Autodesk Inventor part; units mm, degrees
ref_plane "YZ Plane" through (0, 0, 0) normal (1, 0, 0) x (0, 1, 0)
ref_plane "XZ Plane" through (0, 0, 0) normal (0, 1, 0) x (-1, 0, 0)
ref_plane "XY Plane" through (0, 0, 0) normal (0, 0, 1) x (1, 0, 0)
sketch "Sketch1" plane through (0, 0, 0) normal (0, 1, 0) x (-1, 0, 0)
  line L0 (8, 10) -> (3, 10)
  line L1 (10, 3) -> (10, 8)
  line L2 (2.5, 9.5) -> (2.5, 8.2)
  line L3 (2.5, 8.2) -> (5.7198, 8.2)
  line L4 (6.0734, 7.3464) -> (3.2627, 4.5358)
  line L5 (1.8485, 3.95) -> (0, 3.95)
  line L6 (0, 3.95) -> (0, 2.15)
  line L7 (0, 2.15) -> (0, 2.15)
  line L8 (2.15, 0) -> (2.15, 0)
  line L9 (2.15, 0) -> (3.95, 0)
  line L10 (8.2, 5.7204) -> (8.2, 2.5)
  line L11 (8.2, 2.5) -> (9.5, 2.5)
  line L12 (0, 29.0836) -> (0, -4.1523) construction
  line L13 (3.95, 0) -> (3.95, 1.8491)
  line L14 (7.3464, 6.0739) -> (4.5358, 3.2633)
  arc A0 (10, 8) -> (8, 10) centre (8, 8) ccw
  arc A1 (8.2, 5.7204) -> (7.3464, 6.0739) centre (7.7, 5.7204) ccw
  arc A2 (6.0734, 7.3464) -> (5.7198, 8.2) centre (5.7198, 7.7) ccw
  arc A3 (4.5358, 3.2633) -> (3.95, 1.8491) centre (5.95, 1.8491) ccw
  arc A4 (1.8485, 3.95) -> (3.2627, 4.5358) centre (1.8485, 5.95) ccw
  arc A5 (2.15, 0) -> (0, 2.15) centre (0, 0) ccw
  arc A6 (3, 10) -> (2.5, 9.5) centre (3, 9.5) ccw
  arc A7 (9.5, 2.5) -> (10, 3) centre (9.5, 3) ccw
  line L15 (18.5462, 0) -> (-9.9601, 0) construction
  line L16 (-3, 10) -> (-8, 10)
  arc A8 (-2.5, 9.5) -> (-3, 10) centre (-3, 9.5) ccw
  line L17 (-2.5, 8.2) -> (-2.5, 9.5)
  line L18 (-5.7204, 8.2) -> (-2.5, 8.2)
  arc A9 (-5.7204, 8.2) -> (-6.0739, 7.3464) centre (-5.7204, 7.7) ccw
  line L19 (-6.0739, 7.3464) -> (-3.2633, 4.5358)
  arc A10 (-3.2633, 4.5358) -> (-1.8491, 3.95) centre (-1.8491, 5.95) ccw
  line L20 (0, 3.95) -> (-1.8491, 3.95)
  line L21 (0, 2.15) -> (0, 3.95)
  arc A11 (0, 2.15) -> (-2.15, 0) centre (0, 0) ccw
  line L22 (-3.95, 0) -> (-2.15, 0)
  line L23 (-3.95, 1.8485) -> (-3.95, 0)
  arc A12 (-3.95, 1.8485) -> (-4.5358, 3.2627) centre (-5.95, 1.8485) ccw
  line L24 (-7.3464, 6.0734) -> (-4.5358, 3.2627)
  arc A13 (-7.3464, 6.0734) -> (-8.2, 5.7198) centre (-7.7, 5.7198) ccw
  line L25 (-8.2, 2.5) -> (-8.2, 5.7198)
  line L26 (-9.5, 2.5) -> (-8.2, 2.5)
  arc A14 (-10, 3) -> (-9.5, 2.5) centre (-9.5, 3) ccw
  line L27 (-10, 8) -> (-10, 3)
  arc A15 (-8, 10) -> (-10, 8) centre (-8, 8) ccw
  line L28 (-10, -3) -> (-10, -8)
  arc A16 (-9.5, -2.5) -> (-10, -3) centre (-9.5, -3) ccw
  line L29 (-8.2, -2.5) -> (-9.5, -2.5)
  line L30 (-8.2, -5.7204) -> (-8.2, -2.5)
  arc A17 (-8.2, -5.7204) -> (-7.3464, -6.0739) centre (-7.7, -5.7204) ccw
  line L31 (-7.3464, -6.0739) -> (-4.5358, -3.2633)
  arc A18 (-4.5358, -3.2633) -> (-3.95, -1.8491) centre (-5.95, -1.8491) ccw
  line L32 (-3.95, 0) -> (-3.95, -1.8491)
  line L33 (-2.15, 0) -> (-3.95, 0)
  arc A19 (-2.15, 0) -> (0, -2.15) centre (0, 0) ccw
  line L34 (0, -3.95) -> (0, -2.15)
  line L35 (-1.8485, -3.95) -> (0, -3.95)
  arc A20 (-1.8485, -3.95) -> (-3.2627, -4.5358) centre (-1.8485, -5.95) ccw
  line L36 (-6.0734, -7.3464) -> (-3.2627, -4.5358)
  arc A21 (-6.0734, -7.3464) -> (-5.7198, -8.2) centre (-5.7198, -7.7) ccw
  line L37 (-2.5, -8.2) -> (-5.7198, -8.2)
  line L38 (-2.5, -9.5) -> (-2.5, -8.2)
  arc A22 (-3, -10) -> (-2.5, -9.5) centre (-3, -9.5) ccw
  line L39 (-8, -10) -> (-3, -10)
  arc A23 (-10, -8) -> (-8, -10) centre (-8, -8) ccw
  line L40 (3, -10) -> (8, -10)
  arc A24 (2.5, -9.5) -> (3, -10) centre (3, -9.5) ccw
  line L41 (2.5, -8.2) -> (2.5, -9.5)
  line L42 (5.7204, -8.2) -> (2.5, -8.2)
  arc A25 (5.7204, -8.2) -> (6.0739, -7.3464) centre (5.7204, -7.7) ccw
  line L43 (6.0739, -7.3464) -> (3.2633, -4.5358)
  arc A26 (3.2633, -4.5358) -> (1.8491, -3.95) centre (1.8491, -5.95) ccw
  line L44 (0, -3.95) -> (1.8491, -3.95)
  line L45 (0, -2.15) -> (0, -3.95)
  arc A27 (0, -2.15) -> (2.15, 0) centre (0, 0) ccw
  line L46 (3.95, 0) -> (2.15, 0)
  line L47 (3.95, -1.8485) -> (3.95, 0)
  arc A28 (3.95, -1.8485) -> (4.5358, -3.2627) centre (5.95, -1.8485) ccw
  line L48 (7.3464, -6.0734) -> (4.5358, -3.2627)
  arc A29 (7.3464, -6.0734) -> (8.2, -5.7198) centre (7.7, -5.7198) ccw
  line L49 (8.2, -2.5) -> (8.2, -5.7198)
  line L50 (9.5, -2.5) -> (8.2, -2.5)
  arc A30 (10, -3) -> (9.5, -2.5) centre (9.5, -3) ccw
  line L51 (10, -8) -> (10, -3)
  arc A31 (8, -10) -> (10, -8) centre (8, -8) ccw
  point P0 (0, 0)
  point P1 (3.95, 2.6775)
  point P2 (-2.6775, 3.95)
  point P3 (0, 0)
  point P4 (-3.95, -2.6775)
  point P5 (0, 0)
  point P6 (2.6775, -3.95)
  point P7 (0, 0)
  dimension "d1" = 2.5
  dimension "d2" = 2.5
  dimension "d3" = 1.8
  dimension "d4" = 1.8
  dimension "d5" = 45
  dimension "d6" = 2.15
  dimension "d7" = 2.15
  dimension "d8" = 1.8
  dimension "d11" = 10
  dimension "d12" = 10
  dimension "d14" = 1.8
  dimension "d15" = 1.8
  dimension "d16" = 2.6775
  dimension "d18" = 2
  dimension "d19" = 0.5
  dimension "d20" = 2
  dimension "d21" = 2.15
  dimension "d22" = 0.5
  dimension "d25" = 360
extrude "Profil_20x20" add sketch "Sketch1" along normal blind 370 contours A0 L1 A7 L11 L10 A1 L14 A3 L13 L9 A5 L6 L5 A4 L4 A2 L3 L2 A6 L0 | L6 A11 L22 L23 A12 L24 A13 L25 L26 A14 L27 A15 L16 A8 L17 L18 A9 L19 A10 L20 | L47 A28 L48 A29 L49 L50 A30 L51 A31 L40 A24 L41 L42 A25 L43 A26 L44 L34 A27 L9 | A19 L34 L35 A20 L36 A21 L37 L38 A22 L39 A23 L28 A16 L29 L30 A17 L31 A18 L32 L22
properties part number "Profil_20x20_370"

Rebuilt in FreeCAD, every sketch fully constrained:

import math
import FreeCAD as App
import Part
import Sketcher
from FreeCAD import Vector
Q = App.Units.Quantity

doc = App.newDocument("Part")
params = doc.addObject("Spreadsheet::Sheet", "Params")
for row, (alias, value) in enumerate([
    ("sketch1_radius", "2 mm"),
    ("sketch1_diameter", "4.3 mm"),
    ("sketch1_radius2", "0.5 mm"),
    ("sketch1_width", "1.3 mm"),
    ("pad1_length", "370 mm"),
], start=1):
    params.set(f"A{row}", alias)
    params.set(f"B{row}", "=" + value)
    params.setAlias(f"B{row}", alias)

body = doc.addObject("PartDesign::Body", "Body")

sketch1 = doc.addObject("Sketcher::SketchObject", "Sketch")
body.addObject(sketch1)
sketch1.AttachmentSupport = (doc.XZ_Plane, [""])
sketch1.MapMode = "FlatFace"
sketch1.addGeometry(Part.ArcOfCircle(Part.Circle(Vector(-8, 8, 0), Vector(0, 0, 1), 2), math.radians(90), math.radians(180)), False)
sketch1.addGeometry(Part.LineSegment(Vector(-8, 10, 0), Vector(-3, 10, 0)), False)
sketch1.addGeometry(Part.ArcOfCircle(Part.Circle(Vector(-3, 9.5, 0), Vector(0, 0, 1), 0.5), math.radians(0), math.radians(90)), False)
sketch1.addGeometry(Part.LineSegment(Vector(-2.5, 9.5, 0), Vector(-2.5, 8.2, 0)), False)
sketch1.addGeometry(Part.LineSegment(Vector(-2.5, 8.2, 0), Vector(-5.72, 8.2, 0)), False)
sketch1.addGeometry(Part.ArcOfCircle(Part.Circle(Vector(-5.72, 7.7, 0), Vector(0, 0, 1), 0.5), math.radians(90), math.radians(225)), False)
sketch1.addGeometry(Part.LineSegment(Vector(-6.07, 7.35, 0), Vector(-3.26, 4.54, 0)), False)
sketch1.addGeometry(Part.ArcOfCircle(Part.Circle(Vector(-1.85, 5.95, 0), Vector(0, 0, 1), 2), math.radians(-135), math.radians(-90)), False)
sketch1.addGeometry(Part.LineSegment(Vector(-1.85, 3.95, 0), Vector(1.85, 3.95, 0)), False)
sketch1.addGeometry(Part.ArcOfCircle(Part.Circle(Vector(1.85, 5.95, 0), Vector(0, 0, 1), 2), math.radians(-90), math.radians(-45)), False)
sketch1.addGeometry(Part.LineSegment(Vector(3.26, 4.54, 0), Vector(6.07, 7.35, 0)), False)
sketch1.addGeometry(Part.ArcOfCircle(Part.Circle(Vector(5.72, 7.7, 0), Vector(0, 0, 1), 0.5), math.radians(-45), math.radians(90)), False)
sketch1.addGeometry(Part.LineSegment(Vector(5.72, 8.2, 0), Vector(2.5, 8.2, 0)), False)
sketch1.addGeometry(Part.LineSegment(Vector(2.5, 8.2, 0), Vector(2.5, 9.5, 0)), False)
sketch1.addGeometry(Part.ArcOfCircle(Part.Circle(Vector(3, 9.5, 0), Vector(0, 0, 1), 0.5), math.radians(90), math.radians(180)), False)
sketch1.addGeometry(Part.LineSegment(Vector(3, 10, 0), Vector(8, 10, 0)), False)
sketch1.addGeometry(Part.ArcOfCircle(Part.Circle(Vector(8, 8, 0), Vector(0, 0, 1), 2), math.radians(0), math.radians(90)), False)
sketch1.addGeometry(Part.LineSegment(Vector(10, 8, 0), Vector(10, 3, 0)), False)
sketch1.addGeometry(Part.ArcOfCircle(Part.Circle(Vector(9.5, 3, 0), Vector(0, 0, 1), 0.5), math.radians(-90), math.radians(0)), False)
sketch1.addGeometry(Part.LineSegment(Vector(9.5, 2.5, 0), Vector(8.2, 2.5, 0)), False)
sketch1.addGeometry(Part.LineSegment(Vector(8.2, 2.5, 0), Vector(8.2, 5.72, 0)), False)
sketch1.addGeometry(Part.ArcOfCircle(Part.Circle(Vector(7.7, 5.72, 0), Vector(0, 0, 1), 0.5), math.radians(0), math.radians(135)), False)
sketch1.addGeometry(Part.LineSegment(Vector(7.35, 6.07, 0), Vector(4.54, 3.26, 0)), False)
sketch1.addGeometry(Part.ArcOfCircle(Part.Circle(Vector(5.95, 1.85, 0), Vector(0, 0, 1), 2), math.radians(135), math.radians(180)), False)
sketch1.addGeometry(Part.LineSegment(Vector(3.95, 1.85, 0), Vector(3.95, -1.85, 0)), False)
sketch1.addGeometry(Part.ArcOfCircle(Part.Circle(Vector(5.95, -1.85, 0), Vector(0, 0, 1), 2), math.radians(180), math.radians(225)), False)
sketch1.addGeometry(Part.LineSegment(Vector(4.54, -3.26, 0), Vector(7.35, -6.07, 0)), False)
sketch1.addGeometry(Part.ArcOfCircle(Part.Circle(Vector(7.7, -5.72, 0), Vector(0, 0, 1), 0.5), math.radians(-135), math.radians(0)), False)
sketch1.addGeometry(Part.LineSegment(Vector(8.2, -5.72, 0), Vector(8.2, -2.5, 0)), False)
sketch1.addGeometry(Part.LineSegment(Vector(8.2, -2.5, 0), Vector(9.5, -2.5, 0)), False)
sketch1.addGeometry(Part.ArcOfCircle(Part.Circle(Vector(9.5, -3, 0), Vector(0, 0, 1), 0.5), math.radians(0), math.radians(90)), False)
sketch1.addGeometry(Part.LineSegment(Vector(10, -3, 0), Vector(10, -8, 0)), False)
sketch1.addGeometry(Part.ArcOfCircle(Part.Circle(Vector(8, -8, 0), Vector(0, 0, 1), 2), math.radians(-90), math.radians(0)), False)
sketch1.addGeometry(Part.LineSegment(Vector(8, -10, 0), Vector(3, -10, 0)), False)
sketch1.addGeometry(Part.ArcOfCircle(Part.Circle(Vector(3, -9.5, 0), Vector(0, 0, 1), 0.5), math.radians(180), math.radians(270)), False)
sketch1.addGeometry(Part.LineSegment(Vector(2.5, -9.5, 0), Vector(2.5, -8.2, 0)), False)
sketch1.addGeometry(Part.LineSegment(Vector(2.5, -8.2, 0), Vector(5.72, -8.2, 0)), False)
sketch1.addGeometry(Part.ArcOfCircle(Part.Circle(Vector(5.72, -7.7, 0), Vector(0, 0, 1), 0.5), math.radians(-90), math.radians(45)), False)
sketch1.addGeometry(Part.LineSegment(Vector(6.07, -7.35, 0), Vector(3.26, -4.54, 0)), False)
sketch1.addGeometry(Part.ArcOfCircle(Part.Circle(Vector(1.85, -5.95, 0), Vector(0, 0, 1), 2), math.radians(45), math.radians(90)), False)
sketch1.addGeometry(Part.LineSegment(Vector(1.85, -3.95, 0), Vector(-1.85, -3.95, 0)), False)
sketch1.addGeometry(Part.ArcOfCircle(Part.Circle(Vector(-1.85, -5.95, 0), Vector(0, 0, 1), 2), math.radians(90), math.radians(135)), False)
sketch1.addGeometry(Part.LineSegment(Vector(-3.26, -4.54, 0), Vector(-6.07, -7.35, 0)), False)
sketch1.addGeometry(Part.ArcOfCircle(Part.Circle(Vector(-5.72, -7.7, 0), Vector(0, 0, 1), 0.5), math.radians(135), math.radians(270)), False)
sketch1.addGeometry(Part.LineSegment(Vector(-5.72, -8.2, 0), Vector(-2.5, -8.2, 0)), False)
sketch1.addGeometry(Part.LineSegment(Vector(-2.5, -8.2, 0), Vector(-2.5, -9.5, 0)), False)
sketch1.addGeometry(Part.ArcOfCircle(Part.Circle(Vector(-3, -9.5, 0), Vector(0, 0, 1), 0.5), math.radians(-90), math.radians(0)), False)
sketch1.addGeometry(Part.LineSegment(Vector(-3, -10, 0), Vector(-8, -10, 0)), False)
sketch1.addGeometry(Part.ArcOfCircle(Part.Circle(Vector(-8, -8, 0), Vector(0, 0, 1), 2), math.radians(180), math.radians(270)), False)
sketch1.addGeometry(Part.LineSegment(Vector(-10, -8, 0), Vector(-10, -3, 0)), False)
sketch1.addGeometry(Part.ArcOfCircle(Part.Circle(Vector(-9.5, -3, 0), Vector(0, 0, 1), 0.5), math.radians(90), math.radians(180)), False)
sketch1.addGeometry(Part.LineSegment(Vector(-9.5, -2.5, 0), Vector(-8.2, -2.5, 0)), False)
sketch1.addGeometry(Part.LineSegment(Vector(-8.2, -2.5, 0), Vector(-8.2, -5.72, 0)), False)
sketch1.addGeometry(Part.ArcOfCircle(Part.Circle(Vector(-7.7, -5.72, 0), Vector(0, 0, 1), 0.5), math.radians(180), math.radians(315)), False)
sketch1.addGeometry(Part.LineSegment(Vector(-7.35, -6.07, 0), Vector(-4.54, -3.26, 0)), False)
sketch1.addGeometry(Part.ArcOfCircle(Part.Circle(Vector(-5.95, -1.85, 0), Vector(0, 0, 1), 2), math.radians(-45), math.radians(0)), False)
sketch1.addGeometry(Part.LineSegment(Vector(-3.95, -1.85, 0), Vector(-3.95, 1.85, 0)), False)
sketch1.addGeometry(Part.ArcOfCircle(Part.Circle(Vector(-5.95, 1.85, 0), Vector(0, 0, 1), 2), math.radians(0), math.radians(45)), False)
sketch1.addGeometry(Part.LineSegment(Vector(-4.54, 3.26, 0), Vector(-7.35, 6.07, 0)), False)
sketch1.addGeometry(Part.ArcOfCircle(Part.Circle(Vector(-7.7, 5.72, 0), Vector(0, 0, 1), 0.5), math.radians(45), math.radians(180)), False)
sketch1.addGeometry(Part.LineSegment(Vector(-8.2, 5.72, 0), Vector(-8.2, 2.5, 0)), False)
sketch1.addGeometry(Part.LineSegment(Vector(-8.2, 2.5, 0), Vector(-9.5, 2.5, 0)), False)
sketch1.addGeometry(Part.ArcOfCircle(Part.Circle(Vector(-9.5, 3, 0), Vector(0, 0, 1), 0.5), math.radians(180), math.radians(270)), False)
sketch1.addGeometry(Part.LineSegment(Vector(-10, 3, 0), Vector(-10, 8, 0)), False)
sketch1.addGeometry(Part.Circle(Vector(0, 0, 0), Vector(0, 0, 1), 2.15), False)
sketch1.addConstraint(Sketcher.Constraint("Tangent", 0, 1, 1, 1))
sketch1.addConstraint(Sketcher.Constraint("Tangent", 1, 2, 2, 2))
sketch1.addConstraint(Sketcher.Constraint("Tangent", 2, 1, 3, 1))
sketch1.addConstraint(Sketcher.Constraint("Coincident", 3, 2, 4, 1))
sketch1.addConstraint(Sketcher.Constraint("Tangent", 4, 2, 5, 1))
sketch1.addConstraint(Sketcher.Constraint("Tangent", 5, 2, 6, 1))
sketch1.addConstraint(Sketcher.Constraint("Tangent", 6, 2, 7, 1))
sketch1.addConstraint(Sketcher.Constraint("Tangent", 7, 2, 8, 1))
sketch1.addConstraint(Sketcher.Constraint("Tangent", 8, 2, 9, 1))
sketch1.addConstraint(Sketcher.Constraint("Tangent", 9, 2, 10, 1))
sketch1.addConstraint(Sketcher.Constraint("Tangent", 10, 2, 11, 1))
sketch1.addConstraint(Sketcher.Constraint("Tangent", 11, 2, 12, 1))
sketch1.addConstraint(Sketcher.Constraint("Coincident", 12, 2, 13, 1))
sketch1.addConstraint(Sketcher.Constraint("Tangent", 13, 2, 14, 2))
sketch1.addConstraint(Sketcher.Constraint("Tangent", 14, 1, 15, 1))
sketch1.addConstraint(Sketcher.Constraint("Tangent", 15, 2, 16, 2))
sketch1.addConstraint(Sketcher.Constraint("Tangent", 16, 1, 17, 1))
sketch1.addConstraint(Sketcher.Constraint("Tangent", 17, 2, 18, 2))
sketch1.addConstraint(Sketcher.Constraint("Tangent", 18, 1, 19, 1))
sketch1.addConstraint(Sketcher.Constraint("Coincident", 19, 2, 20, 1))
sketch1.addConstraint(Sketcher.Constraint("Tangent", 20, 2, 21, 1))
sketch1.addConstraint(Sketcher.Constraint("Tangent", 21, 2, 22, 1))
sketch1.addConstraint(Sketcher.Constraint("Tangent", 22, 2, 23, 1))
sketch1.addConstraint(Sketcher.Constraint("Tangent", 23, 2, 24, 1))
sketch1.addConstraint(Sketcher.Constraint("Tangent", 24, 2, 25, 1))
sketch1.addConstraint(Sketcher.Constraint("Tangent", 25, 2, 26, 1))
sketch1.addConstraint(Sketcher.Constraint("Tangent", 26, 2, 27, 1))
sketch1.addConstraint(Sketcher.Constraint("Tangent", 27, 2, 28, 1))
sketch1.addConstraint(Sketcher.Constraint("Coincident", 28, 2, 29, 1))
sketch1.addConstraint(Sketcher.Constraint("Tangent", 29, 2, 30, 2))
sketch1.addConstraint(Sketcher.Constraint("Tangent", 30, 1, 31, 1))
sketch1.addConstraint(Sketcher.Constraint("Tangent", 31, 2, 32, 2))
sketch1.addConstraint(Sketcher.Constraint("Tangent", 32, 1, 33, 1))
sketch1.addConstraint(Sketcher.Constraint("Tangent", 33, 2, 34, 2))
sketch1.addConstraint(Sketcher.Constraint("Tangent", 34, 1, 35, 1))
sketch1.addConstraint(Sketcher.Constraint("Coincident", 35, 2, 36, 1))
sketch1.addConstraint(Sketcher.Constraint("Tangent", 36, 2, 37, 1))
sketch1.addConstraint(Sketcher.Constraint("Tangent", 37, 2, 38, 1))
sketch1.addConstraint(Sketcher.Constraint("Tangent", 38, 2, 39, 1))
sketch1.addConstraint(Sketcher.Constraint("Tangent", 39, 2, 40, 1))
sketch1.addConstraint(Sketcher.Constraint("Tangent", 40, 2, 41, 1))
sketch1.addConstraint(Sketcher.Constraint("Tangent", 41, 2, 42, 1))
sketch1.addConstraint(Sketcher.Constraint("Tangent", 42, 2, 43, 1))
sketch1.addConstraint(Sketcher.Constraint("Tangent", 43, 2, 44, 1))
sketch1.addConstraint(Sketcher.Constraint("Coincident", 44, 2, 45, 1))
sketch1.addConstraint(Sketcher.Constraint("Tangent", 45, 2, 46, 2))
sketch1.addConstraint(Sketcher.Constraint("Tangent", 46, 1, 47, 1))
sketch1.addConstraint(Sketcher.Constraint("Tangent", 47, 2, 48, 2))
sketch1.addConstraint(Sketcher.Constraint("Tangent", 48, 1, 49, 1))
sketch1.addConstraint(Sketcher.Constraint("Tangent", 49, 2, 50, 2))
sketch1.addConstraint(Sketcher.Constraint("Tangent", 50, 1, 51, 1))
sketch1.addConstraint(Sketcher.Constraint("Coincident", 51, 2, 52, 1))
sketch1.addConstraint(Sketcher.Constraint("Tangent", 52, 2, 53, 1))
sketch1.addConstraint(Sketcher.Constraint("Tangent", 53, 2, 54, 1))
sketch1.addConstraint(Sketcher.Constraint("Tangent", 54, 2, 55, 1))
sketch1.addConstraint(Sketcher.Constraint("Tangent", 55, 2, 56, 1))
sketch1.addConstraint(Sketcher.Constraint("Tangent", 56, 2, 57, 1))
sketch1.addConstraint(Sketcher.Constraint("Tangent", 57, 2, 58, 1))
sketch1.addConstraint(Sketcher.Constraint("Tangent", 58, 2, 59, 1))
sketch1.addConstraint(Sketcher.Constraint("Tangent", 59, 2, 60, 1))
sketch1.addConstraint(Sketcher.Constraint("Coincident", 60, 2, 61, 1))
sketch1.addConstraint(Sketcher.Constraint("Tangent", 61, 2, 62, 2))
sketch1.addConstraint(Sketcher.Constraint("Tangent", 62, 1, 63, 1))
sketch1.addConstraint(Sketcher.Constraint("Tangent", 63, 2, 0, 2))
sketch1.addConstraint(Sketcher.Constraint("Horizontal", 1))
sketch1.addConstraint(Sketcher.Constraint("Vertical", 3))
sketch1.addConstraint(Sketcher.Constraint("Horizontal", 4))
sketch1.addConstraint(Sketcher.Constraint("Horizontal", 8))
sketch1.addConstraint(Sketcher.Constraint("Horizontal", 12))
sketch1.addConstraint(Sketcher.Constraint("Vertical", 13))
sketch1.addConstraint(Sketcher.Constraint("Horizontal", 15))
sketch1.addConstraint(Sketcher.Constraint("Vertical", 17))
sketch1.addConstraint(Sketcher.Constraint("Horizontal", 19))
sketch1.addConstraint(Sketcher.Constraint("Vertical", 20))
sketch1.addConstraint(Sketcher.Constraint("Vertical", 24))
sketch1.addConstraint(Sketcher.Constraint("Vertical", 28))
sketch1.addConstraint(Sketcher.Constraint("Horizontal", 29))
sketch1.addConstraint(Sketcher.Constraint("Vertical", 31))
sketch1.addConstraint(Sketcher.Constraint("Horizontal", 33))
sketch1.addConstraint(Sketcher.Constraint("Vertical", 35))
sketch1.addConstraint(Sketcher.Constraint("Horizontal", 36))
sketch1.addConstraint(Sketcher.Constraint("Horizontal", 40))
sketch1.addConstraint(Sketcher.Constraint("Horizontal", 44))
sketch1.addConstraint(Sketcher.Constraint("Vertical", 45))
sketch1.addConstraint(Sketcher.Constraint("Horizontal", 47))
sketch1.addConstraint(Sketcher.Constraint("Vertical", 49))
sketch1.addConstraint(Sketcher.Constraint("Horizontal", 51))
sketch1.addConstraint(Sketcher.Constraint("Vertical", 52))
sketch1.addConstraint(Sketcher.Constraint("Vertical", 56))
sketch1.addConstraint(Sketcher.Constraint("Vertical", 60))
sketch1.addConstraint(Sketcher.Constraint("Horizontal", 61))
sketch1.addConstraint(Sketcher.Constraint("Vertical", 63))
sketch1.addConstraint(Sketcher.Constraint("Coincident", 64, 3, -1, 1))
sketch1.addConstraint(Sketcher.Constraint("Equal", 2, 5))
sketch1.addConstraint(Sketcher.Constraint("Equal", 0, 7))
sketch1.addConstraint(Sketcher.Constraint("Equal", 7, 9))
sketch1.addConstraint(Sketcher.Constraint("Equal", 5, 11))
sketch1.addConstraint(Sketcher.Constraint("Equal", 11, 14))
sketch1.addConstraint(Sketcher.Constraint("Equal", 9, 16))
sketch1.addConstraint(Sketcher.Constraint("Equal", 14, 18))
sketch1.addConstraint(Sketcher.Constraint("Equal", 18, 21))
sketch1.addConstraint(Sketcher.Constraint("Equal", 16, 23))
sketch1.addConstraint(Sketcher.Constraint("Equal", 23, 25))
sketch1.addConstraint(Sketcher.Constraint("Equal", 21, 27))
sketch1.addConstraint(Sketcher.Constraint("Equal", 27, 30))
sketch1.addConstraint(Sketcher.Constraint("Equal", 25, 32))
sketch1.addConstraint(Sketcher.Constraint("Equal", 30, 34))
sketch1.addConstraint(Sketcher.Constraint("Equal", 34, 37))
sketch1.addConstraint(Sketcher.Constraint("Equal", 32, 39))
sketch1.addConstraint(Sketcher.Constraint("Equal", 39, 41))
sketch1.addConstraint(Sketcher.Constraint("Equal", 37, 43))
sketch1.addConstraint(Sketcher.Constraint("Equal", 43, 46))
sketch1.addConstraint(Sketcher.Constraint("Equal", 41, 48))
sketch1.addConstraint(Sketcher.Constraint("Equal", 46, 50))
sketch1.addConstraint(Sketcher.Constraint("Equal", 50, 53))
sketch1.addConstraint(Sketcher.Constraint("Equal", 48, 55))
sketch1.addConstraint(Sketcher.Constraint("Equal", 55, 57))
sketch1.addConstraint(Sketcher.Constraint("Equal", 53, 59))
sketch1.addConstraint(Sketcher.Constraint("Equal", 59, 62))
sketch1.addConstraint(Sketcher.Constraint("Symmetric", 0, 3, 32, 3, -1, 1))
sketch1.addConstraint(Sketcher.Constraint("Symmetric", 5, 3, 37, 3, -1, 1))
sketch1.addConstraint(Sketcher.Constraint("Symmetric", 7, 3, 39, 3, -1, 1))
sketch1.addConstraint(Sketcher.Constraint("Symmetric", 11, 3, 43, 3, -1, 1))
sketch1.addConstraint(Sketcher.Constraint("Symmetric", 14, 3, 46, 3, -1, 1))
sketch1.addConstraint(Sketcher.Constraint("Symmetric", 18, 3, 50, 3, -1, 1))
sketch1.addConstraint(Sketcher.Constraint("Symmetric", 21, 3, 53, 3, -1, 1))
sketch1.addConstraint(Sketcher.Constraint("Symmetric", 23, 3, 55, 3, -1, 1))
sketch1.addConstraint(Sketcher.Constraint("Symmetric", 27, 3, 59, 3, -1, 1))
sketch1.addConstraint(Sketcher.Constraint("Symmetric", 2, 3, 14, 3, -2))
sketch1.addConstraint(Sketcher.Constraint("Symmetric", 30, 3, 50, 3, -2))
sketch1.addConstraint(Sketcher.Constraint("Symmetric", 35, 2, 44, 2, -2))
sketch1.addConstraint(Sketcher.Constraint("Symmetric", 19, 2, 60, 2, -2))
sketch1.addConstraint(Sketcher.Constraint("Perpendicular", 6, 10))
sketch1.addConstraint(Sketcher.Constraint("Parallel", 10, 22))
sketch1.addConstraint(Sketcher.Constraint("Perpendicular", 22, 26))
sketch1.addConstraint(Sketcher.Constraint("Perpendicular", 38, 42))
sketch1.addConstraint(Sketcher.Constraint("Perpendicular", 54, 58))
sketch1.addConstraint(Sketcher.Constraint("Horizontal", 6, 2, 9, 2))
sketch1.addConstraint(Sketcher.Constraint("Equal", 61, 3))
sketch1.addConstraint(Sketcher.Constraint("Equal", 47, 17))
sketch1.addConstraint(Sketcher.Constraint("Equal", 36, 20))
sketch1.addConstraint(Sketcher.Constraint("Equal", 40, 24))
sketch1.addConstraint(Sketcher.Constraint("Equal", 44, 28))
sketch1.addConstraint(Sketcher.Constraint("Equal", 10, 22))
sketch1.addConstraint(Sketcher.Constraint("Radius", 0, Q("2 mm")))
sketch1.addConstraint(Sketcher.Constraint("Diameter", 64, Q("4.3 mm")))
sketch1.addConstraint(Sketcher.Constraint("Radius", 2, Q("0.5 mm")))
sketch1.addConstraint(Sketcher.Constraint("DistanceY", -1, 1, 0, 1, Q("10 mm")))
sketch1.addConstraint(Sketcher.Constraint("DistanceX", 2, 1, -1, 1, Q("2.5 mm")))
sketch1.addConstraint(Sketcher.Constraint("DistanceX", 19, 2, 19, 1, Q("1.3 mm")))
sketch1.addConstraint(Sketcher.Constraint("DistanceY", -1, 1, 7, 3, Q("5.95 mm")))
sketch1.addConstraint(Sketcher.Constraint("DistanceX", 4, 2, 4, 1, Q("3.2198 mm")))
sketch1.addConstraint(Sketcher.Constraint("DistanceX", 8, 1, 8, 2, Q("3.6976 mm")))
sketch1.setExpression("Constraints[144]", "Params.sketch1_radius")
sketch1.setExpression("Constraints[145]", "Params.sketch1_diameter")
sketch1.setExpression("Constraints[146]", "Params.sketch1_radius2")
sketch1.setExpression("Constraints[149]", "Params.sketch1_width")
pad1 = doc.addObject("PartDesign::Pad", "Pad")
body.addObject(pad1)
pad1.Profile = sketch1
pad1.setExpression("Length", "Params.pad1_length")
pad1.Reversed = True

doc.recompute()
